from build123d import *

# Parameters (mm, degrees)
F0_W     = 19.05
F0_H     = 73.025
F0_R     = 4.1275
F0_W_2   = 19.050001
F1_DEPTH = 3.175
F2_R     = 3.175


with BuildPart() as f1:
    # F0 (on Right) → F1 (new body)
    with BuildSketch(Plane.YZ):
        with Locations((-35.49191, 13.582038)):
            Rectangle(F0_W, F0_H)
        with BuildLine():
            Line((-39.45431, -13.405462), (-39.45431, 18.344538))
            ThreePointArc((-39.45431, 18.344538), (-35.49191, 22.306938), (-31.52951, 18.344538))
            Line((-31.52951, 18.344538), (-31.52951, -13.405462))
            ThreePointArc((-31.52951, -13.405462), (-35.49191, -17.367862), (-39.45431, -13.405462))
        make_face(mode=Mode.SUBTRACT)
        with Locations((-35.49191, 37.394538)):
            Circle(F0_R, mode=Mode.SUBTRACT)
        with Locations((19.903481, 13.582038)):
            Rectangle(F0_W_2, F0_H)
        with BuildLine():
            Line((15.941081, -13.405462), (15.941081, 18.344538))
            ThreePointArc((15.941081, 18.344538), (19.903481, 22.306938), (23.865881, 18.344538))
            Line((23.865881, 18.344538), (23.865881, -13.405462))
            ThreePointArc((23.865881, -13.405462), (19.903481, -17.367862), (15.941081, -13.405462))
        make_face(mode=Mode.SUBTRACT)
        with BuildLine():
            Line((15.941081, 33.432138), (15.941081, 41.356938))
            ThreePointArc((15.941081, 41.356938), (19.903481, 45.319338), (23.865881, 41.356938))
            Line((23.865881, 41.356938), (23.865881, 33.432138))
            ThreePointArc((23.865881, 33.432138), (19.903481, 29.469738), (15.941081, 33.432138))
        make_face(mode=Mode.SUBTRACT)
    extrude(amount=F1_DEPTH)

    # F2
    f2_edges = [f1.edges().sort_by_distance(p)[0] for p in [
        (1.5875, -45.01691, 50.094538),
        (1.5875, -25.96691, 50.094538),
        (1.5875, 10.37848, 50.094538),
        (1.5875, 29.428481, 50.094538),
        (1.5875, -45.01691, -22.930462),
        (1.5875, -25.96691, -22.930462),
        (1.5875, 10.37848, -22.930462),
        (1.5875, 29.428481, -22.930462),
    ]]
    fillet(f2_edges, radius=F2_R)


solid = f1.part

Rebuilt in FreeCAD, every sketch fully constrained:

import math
import FreeCAD as App
import Part
import Sketcher
Q = App.Units.Quantity


def edges_at(feature, points):
    """Names of the edges that pass closest to the given points."""
    edges = feature.Shape.Edges
    near = lambda p: min(range(len(edges)), key=lambda i: edges[i].distToShape(Part.Vertex(*p))[0])
    return sorted({f"Edge{near(p) + 1}" for p in points})


def add_polygon(sketch, points):
    """Adds a closed chain of lines whose ends are joined by coincident constraints."""
    first, n = sketch.GeometryCount, len(points)
    for a, b in zip(points, points[1:] + points[:1]):
        sketch.addGeometry(Part.LineSegment(App.Vector(*a, 0), App.Vector(*b, 0)), False)
    for i in range(n):
        sketch.addConstraint(Sketcher.Constraint("Coincident", first + i, 2, first + (i + 1) % n, 1))

doc = App.newDocument("Part")
params = doc.addObject("Spreadsheet::Sheet", "Params")
for row, (alias, value) in enumerate([
    ("sketch1_diameter", "0.325 in"),
    ("sketch1_radius", "0.156 in"),
    ("sketch1_width", "0.75 in"),
    ("sketch1_height", "1.25 in"),
    ("sketch1_height2", "2.875 in"),
    ("pad1_length", "0.125 in"),
    ("fillet_radius", "0.125 in"),
], start=1):
    params.set(f"A{row}", alias)
    params.set(f"B{row}", "=" + value)
    params.setAlias(f"B{row}", alias)

body = doc.addObject("PartDesign::Body", "Body")
body.AllowCompound = True

# Sketch on YZ plane
sketch1 = body.newObject("Sketcher::SketchObject", "Sketch")
sketch1.AttachmentSupport = (doc.getObject("YZ_Plane"), [""])
sketch1.MapMode = "FlatFace"
add_polygon(sketch1, [(-45.01691, 50.094538), (-45.01691, -22.930462), (-25.96691, -22.930462), (-25.96691, 50.094538)])  # lines 0-3
sketch1.addGeometry(Part.ArcOfCircle(Part.Circle(App.Vector(-35.49191, -13.405462, 0), App.Vector(0, 0, 1), 3.9624), math.radians(180), math.radians(360)), False)  # 4
sketch1.addGeometry(Part.LineSegment(App.Vector(-39.45431, -13.405462, 0), App.Vector(-39.45431, 18.344538, 0)), False)  # 5
sketch1.addGeometry(Part.ArcOfCircle(Part.Circle(App.Vector(-35.49191, 18.344538, 0), App.Vector(0, 0, 1), 3.9624), math.radians(0), math.radians(180)), False)  # 6
sketch1.addGeometry(Part.LineSegment(App.Vector(-31.52951, 18.344538, 0), App.Vector(-31.52951, -13.405462, 0)), False)  # 7
sketch1.addGeometry(Part.Circle(App.Vector(-35.49191, 37.394538, 0), App.Vector(0, 0, 1), 4.1275), False)  # 8
add_polygon(sketch1, [(10.378481, 50.094538), (10.378481, -22.930462), (29.428482, -22.930462), (29.428482, 50.094538)])  # lines 9-12
sketch1.addGeometry(Part.ArcOfCircle(Part.Circle(App.Vector(19.903481, -13.405462, 0), App.Vector(0, 0, 1), 3.9624), math.radians(180), math.radians(360)), False)  # 13
sketch1.addGeometry(Part.LineSegment(App.Vector(15.941081, -13.405462, 0), App.Vector(15.941081, 18.344538, 0)), False)  # 14
sketch1.addGeometry(Part.ArcOfCircle(Part.Circle(App.Vector(19.903481, 18.344538, 0), App.Vector(0, 0, 1), 3.9624), math.radians(0), math.radians(180)), False)  # 15
sketch1.addGeometry(Part.LineSegment(App.Vector(23.865881, 18.344538, 0), App.Vector(23.865881, -13.405462, 0)), False)  # 16
sketch1.addGeometry(Part.ArcOfCircle(Part.Circle(App.Vector(19.903481, 33.432138, 0), App.Vector(0, 0, 1), 3.9624), math.radians(180), math.radians(360)), False)  # 17
sketch1.addGeometry(Part.LineSegment(App.Vector(15.941081, 33.432138, 0), App.Vector(15.941081, 41.356938, 0)), False)  # 18
sketch1.addGeometry(Part.ArcOfCircle(Part.Circle(App.Vector(19.903481, 41.356938, 0), App.Vector(0, 0, 1), 3.9624), math.radians(0), math.radians(180)), False)  # 19
sketch1.addGeometry(Part.LineSegment(App.Vector(23.865881, 41.356938, 0), App.Vector(23.865881, 33.432138, 0)), False)  # 20
sketch1.addConstraint([
    Sketcher.Constraint("Tangent", 4, 1, 5, 1),
    Sketcher.Constraint("Tangent", 5, 2, 6, 2),
    Sketcher.Constraint("Tangent", 6, 1, 7, 1),
    Sketcher.Constraint("Tangent", 7, 2, 4, 2),
    Sketcher.Constraint("Tangent", 13, 1, 14, 1),
    Sketcher.Constraint("Tangent", 14, 2, 15, 2),
    Sketcher.Constraint("Tangent", 15, 1, 16, 1),
    Sketcher.Constraint("Tangent", 16, 2, 13, 2),
    Sketcher.Constraint("Tangent", 17, 1, 18, 1),
    Sketcher.Constraint("Tangent", 18, 2, 19, 2),
    Sketcher.Constraint("Tangent", 19, 1, 20, 1),
    Sketcher.Constraint("Tangent", 20, 2, 17, 2),
    Sketcher.Constraint("Vertical", 0),
    Sketcher.Constraint("Horizontal", 1),
    Sketcher.Constraint("Vertical", 2),
    Sketcher.Constraint("Horizontal", 3),
    Sketcher.Constraint("Vertical", 5),
    Sketcher.Constraint("Vertical", 7),
    Sketcher.Constraint("Vertical", 9),
    Sketcher.Constraint("Horizontal", 10),
    Sketcher.Constraint("Vertical", 11),
    Sketcher.Constraint("Horizontal", 12),
    Sketcher.Constraint("Vertical", 14),
    Sketcher.Constraint("Vertical", 16),
    Sketcher.Constraint("Vertical", 18),
    Sketcher.Constraint("Vertical", 20),
    Sketcher.Constraint("Equal", 6, 13),
    Sketcher.Constraint("Equal", 15, 17),
    Sketcher.Constraint("Horizontal", 4, 3, 13, 3),
    Sketcher.Constraint("Horizontal", 6, 3, 15, 3),
    Sketcher.Constraint("Horizontal", 1, 2, 9, 2),
    Sketcher.Constraint("Horizontal", 3, 2, 11, 2),
    Sketcher.Constraint("Vertical", 6, 3, 8, 3),
    Sketcher.Constraint("Vertical", 15, 3, 17, 3),
    Sketcher.Constraint("Equal", 3, 10),
    Sketcher.Constraint("Diameter", 8, Q("0.325 in")),
    Sketcher.Constraint("Radius", 4, Q("0.156 in")),
    Sketcher.Constraint("DistanceY", 4, 3, 8, 3, Q("2 in")),
    Sketcher.Constraint("DistanceX", 1, 1, 1, 2, Q("0.75 in")),
    Sketcher.Constraint("DistanceY", 5, 1, 5, 2, Q("1.25 in")),
    Sketcher.Constraint("DistanceY", 8, 3, 2, 2, Q("0.5 in")),
    Sketcher.Constraint("DistanceY", 0, 2, 0, 1, Q("2.875 in")),
    Sketcher.Constraint("DistanceY", 18, 1, 18, 2, Q("0.312 in")),
    Sketcher.Constraint("DistanceY", 15, 3, 17, 3, Q("0.594 in")),
    Sketcher.Constraint("DistanceX", 0, 2, 4, 3, Q("0.375 in")),
    Sketcher.Constraint("DistanceX", 9, 2, 13, 3, Q("0.375 in")),
    Sketcher.Constraint("DistanceX", 4, 3, -1, 1, 35.49191),
    Sketcher.Constraint("DistanceY", -1, 1, 6, 3, 18.344538),
    Sketcher.Constraint("DistanceX", -1, 1, 13, 3, 19.903481),
])
sketch1.setExpression("Constraints[43]", "Params.sketch1_diameter")
sketch1.setExpression("Constraints[44]", "Params.sketch1_radius")
sketch1.setExpression("Constraints[46]", "Params.sketch1_width")
sketch1.setExpression("Constraints[47]", "Params.sketch1_height")
sketch1.setExpression("Constraints[49]", "Params.sketch1_height2")
pad1 = body.newObject("PartDesign::Pad", "Pad")
pad1.Profile = sketch1
pad1.setExpression("Length", "Params.pad1_length")
doc.recompute()

fillet = body.newObject("PartDesign::Fillet", "Fillet")
fillet.Base = (pad1, edges_at(pad1, [
    (1.587, -45.017, 50.095),
    (1.587, -25.967, 50.095),
    (1.587, 10.378, 50.095),
    (1.587, 29.428, 50.095),
    (1.587, -45.017, -22.93),
    (1.587, -25.967, -22.93),
    (1.587, 10.378, -22.93),
    (1.587, 29.428, -22.93),
]))
fillet.setExpression("Radius", "Params.fillet_radius")

doc.recompute()
